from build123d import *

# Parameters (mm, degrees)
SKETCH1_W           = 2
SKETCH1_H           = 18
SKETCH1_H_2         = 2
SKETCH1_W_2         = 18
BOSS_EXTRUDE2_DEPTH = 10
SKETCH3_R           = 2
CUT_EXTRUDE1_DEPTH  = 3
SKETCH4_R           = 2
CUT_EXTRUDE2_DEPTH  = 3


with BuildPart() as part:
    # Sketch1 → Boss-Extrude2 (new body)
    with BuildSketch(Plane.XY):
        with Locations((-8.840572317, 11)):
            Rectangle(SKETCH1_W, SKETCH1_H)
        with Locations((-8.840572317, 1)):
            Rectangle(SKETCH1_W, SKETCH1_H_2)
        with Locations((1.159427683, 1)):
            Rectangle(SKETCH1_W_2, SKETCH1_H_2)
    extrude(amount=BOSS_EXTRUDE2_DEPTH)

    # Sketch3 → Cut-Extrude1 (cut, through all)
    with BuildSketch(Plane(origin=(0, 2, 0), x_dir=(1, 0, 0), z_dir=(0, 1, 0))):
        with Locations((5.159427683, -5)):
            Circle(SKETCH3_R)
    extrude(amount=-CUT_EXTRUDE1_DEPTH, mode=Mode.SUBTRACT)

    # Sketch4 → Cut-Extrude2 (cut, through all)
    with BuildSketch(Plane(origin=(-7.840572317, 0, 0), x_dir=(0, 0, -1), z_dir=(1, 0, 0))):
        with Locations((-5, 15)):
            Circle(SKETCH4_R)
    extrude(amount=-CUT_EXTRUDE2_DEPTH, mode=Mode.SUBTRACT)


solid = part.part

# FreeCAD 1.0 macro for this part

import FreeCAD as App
import Part
import Sketcher

V = App.Vector

doc = App.newDocument("Part")
body = doc.addObject("PartDesign::Body", "Body")

sketch1 = body.newObject("Sketcher::SketchObject", "Sketch")
sketch1.AttachmentSupport = (doc.getObject("XY_Plane"), [""])
sketch1.MapMode = "FlatFace"
sketch1.addGeometry([
    Part.LineSegment(V(-9.8, 20, 0), V(-9.8, 0, 0)),
    Part.LineSegment(V(-9.8, 0, 0), V(10.2, 0, 0)),
    Part.LineSegment(V(10.2, 0, 0), V(10.2, 2, 0)),
    Part.LineSegment(V(10.2, 2, 0), V(-7.8, 2, 0)),
    Part.LineSegment(V(-7.8, 2, 0), V(-7.8, 20, 0)),
    Part.LineSegment(V(-7.8, 20, 0), V(-9.8, 20, 0)),
], False)
sketch1.addConstraint([
    Sketcher.Constraint("Coincident", 0, 2, 1, 1),
    Sketcher.Constraint("Coincident", 1, 2, 2, 1),
    Sketcher.Constraint("Coincident", 2, 2, 3, 1),
    Sketcher.Constraint("Coincident", 3, 2, 4, 1),
    Sketcher.Constraint("Coincident", 4, 2, 5, 1),
    Sketcher.Constraint("Coincident", 5, 2, 0, 1),
    Sketcher.Constraint("Vertical", 0),
    Sketcher.Constraint("Horizontal", 1),
    Sketcher.Constraint("Vertical", 2),
    Sketcher.Constraint("Horizontal", 3),
    Sketcher.Constraint("Vertical", 4),
    Sketcher.Constraint("Horizontal", 5),
    Sketcher.Constraint("PointOnObject", 0, 2, -1),
    Sketcher.Constraint("Equal", 1, 0),
    Sketcher.Constraint("Equal", 5, 2),
    Sketcher.Constraint("DistanceX", 1, 1, 1, 2, 20.0),
    Sketcher.Constraint("DistanceX", 3, 2, 3, 1, 18.0),
    Sketcher.Constraint("DistanceX", 0, 2, -1, 1, 9.840572),
])
pad1 = body.newObject("PartDesign::Pad", "Pad")
pad1.Profile = sketch1
pad1.Length = 10

sketch2 = body.newObject("Sketcher::SketchObject", "Sketch001")
sketch2.AttachmentSupport = (doc.getObject("XZ_Plane"), [""])
sketch2.MapMode = "FlatFace"
sketch2.AttachmentOffset = App.Placement(V(0, 0, -2), App.Rotation())
sketch2.addGeometry(Part.Circle(V(5.2, 5, 0), V(0, 0, 1), 2), False)
sketch2.addConstraint([
    Sketcher.Constraint("Diameter", 0, 4.0),
    Sketcher.Constraint("DistanceY", -1, 1, 0, 3, 5.0),
    Sketcher.Constraint("DistanceX", -1, 1, 0, 3, 5.159428),
])
pocket1 = body.newObject("PartDesign::Pocket", "Pocket")
pocket1.Profile = sketch2
pocket1.Type = "ThroughAll"
pocket1.Reversed = True

sketch3 = body.newObject("Sketcher::SketchObject", "Sketch002")
sketch3.AttachmentSupport = (doc.getObject("YZ_Plane"), [""])
sketch3.MapMode = "FlatFace"
sketch3.AttachmentOffset = App.Placement(V(0, 0, -7.840572), App.Rotation())
sketch3.addGeometry(Part.Circle(V(15, 5, 0), V(0, 0, 1), 2), False)
sketch3.addConstraint([
    Sketcher.Constraint("Diameter", 0, 4.0),
    Sketcher.Constraint("DistanceX", -1, 1, 0, 3, 15.0),
    Sketcher.Constraint("DistanceY", -1, 1, 0, 3, 5.0),
])
pocket2 = body.newObject("PartDesign::Pocket", "Pocket001")
pocket2.Profile = sketch3
pocket2.Type = "ThroughAll"

doc.recompute()
